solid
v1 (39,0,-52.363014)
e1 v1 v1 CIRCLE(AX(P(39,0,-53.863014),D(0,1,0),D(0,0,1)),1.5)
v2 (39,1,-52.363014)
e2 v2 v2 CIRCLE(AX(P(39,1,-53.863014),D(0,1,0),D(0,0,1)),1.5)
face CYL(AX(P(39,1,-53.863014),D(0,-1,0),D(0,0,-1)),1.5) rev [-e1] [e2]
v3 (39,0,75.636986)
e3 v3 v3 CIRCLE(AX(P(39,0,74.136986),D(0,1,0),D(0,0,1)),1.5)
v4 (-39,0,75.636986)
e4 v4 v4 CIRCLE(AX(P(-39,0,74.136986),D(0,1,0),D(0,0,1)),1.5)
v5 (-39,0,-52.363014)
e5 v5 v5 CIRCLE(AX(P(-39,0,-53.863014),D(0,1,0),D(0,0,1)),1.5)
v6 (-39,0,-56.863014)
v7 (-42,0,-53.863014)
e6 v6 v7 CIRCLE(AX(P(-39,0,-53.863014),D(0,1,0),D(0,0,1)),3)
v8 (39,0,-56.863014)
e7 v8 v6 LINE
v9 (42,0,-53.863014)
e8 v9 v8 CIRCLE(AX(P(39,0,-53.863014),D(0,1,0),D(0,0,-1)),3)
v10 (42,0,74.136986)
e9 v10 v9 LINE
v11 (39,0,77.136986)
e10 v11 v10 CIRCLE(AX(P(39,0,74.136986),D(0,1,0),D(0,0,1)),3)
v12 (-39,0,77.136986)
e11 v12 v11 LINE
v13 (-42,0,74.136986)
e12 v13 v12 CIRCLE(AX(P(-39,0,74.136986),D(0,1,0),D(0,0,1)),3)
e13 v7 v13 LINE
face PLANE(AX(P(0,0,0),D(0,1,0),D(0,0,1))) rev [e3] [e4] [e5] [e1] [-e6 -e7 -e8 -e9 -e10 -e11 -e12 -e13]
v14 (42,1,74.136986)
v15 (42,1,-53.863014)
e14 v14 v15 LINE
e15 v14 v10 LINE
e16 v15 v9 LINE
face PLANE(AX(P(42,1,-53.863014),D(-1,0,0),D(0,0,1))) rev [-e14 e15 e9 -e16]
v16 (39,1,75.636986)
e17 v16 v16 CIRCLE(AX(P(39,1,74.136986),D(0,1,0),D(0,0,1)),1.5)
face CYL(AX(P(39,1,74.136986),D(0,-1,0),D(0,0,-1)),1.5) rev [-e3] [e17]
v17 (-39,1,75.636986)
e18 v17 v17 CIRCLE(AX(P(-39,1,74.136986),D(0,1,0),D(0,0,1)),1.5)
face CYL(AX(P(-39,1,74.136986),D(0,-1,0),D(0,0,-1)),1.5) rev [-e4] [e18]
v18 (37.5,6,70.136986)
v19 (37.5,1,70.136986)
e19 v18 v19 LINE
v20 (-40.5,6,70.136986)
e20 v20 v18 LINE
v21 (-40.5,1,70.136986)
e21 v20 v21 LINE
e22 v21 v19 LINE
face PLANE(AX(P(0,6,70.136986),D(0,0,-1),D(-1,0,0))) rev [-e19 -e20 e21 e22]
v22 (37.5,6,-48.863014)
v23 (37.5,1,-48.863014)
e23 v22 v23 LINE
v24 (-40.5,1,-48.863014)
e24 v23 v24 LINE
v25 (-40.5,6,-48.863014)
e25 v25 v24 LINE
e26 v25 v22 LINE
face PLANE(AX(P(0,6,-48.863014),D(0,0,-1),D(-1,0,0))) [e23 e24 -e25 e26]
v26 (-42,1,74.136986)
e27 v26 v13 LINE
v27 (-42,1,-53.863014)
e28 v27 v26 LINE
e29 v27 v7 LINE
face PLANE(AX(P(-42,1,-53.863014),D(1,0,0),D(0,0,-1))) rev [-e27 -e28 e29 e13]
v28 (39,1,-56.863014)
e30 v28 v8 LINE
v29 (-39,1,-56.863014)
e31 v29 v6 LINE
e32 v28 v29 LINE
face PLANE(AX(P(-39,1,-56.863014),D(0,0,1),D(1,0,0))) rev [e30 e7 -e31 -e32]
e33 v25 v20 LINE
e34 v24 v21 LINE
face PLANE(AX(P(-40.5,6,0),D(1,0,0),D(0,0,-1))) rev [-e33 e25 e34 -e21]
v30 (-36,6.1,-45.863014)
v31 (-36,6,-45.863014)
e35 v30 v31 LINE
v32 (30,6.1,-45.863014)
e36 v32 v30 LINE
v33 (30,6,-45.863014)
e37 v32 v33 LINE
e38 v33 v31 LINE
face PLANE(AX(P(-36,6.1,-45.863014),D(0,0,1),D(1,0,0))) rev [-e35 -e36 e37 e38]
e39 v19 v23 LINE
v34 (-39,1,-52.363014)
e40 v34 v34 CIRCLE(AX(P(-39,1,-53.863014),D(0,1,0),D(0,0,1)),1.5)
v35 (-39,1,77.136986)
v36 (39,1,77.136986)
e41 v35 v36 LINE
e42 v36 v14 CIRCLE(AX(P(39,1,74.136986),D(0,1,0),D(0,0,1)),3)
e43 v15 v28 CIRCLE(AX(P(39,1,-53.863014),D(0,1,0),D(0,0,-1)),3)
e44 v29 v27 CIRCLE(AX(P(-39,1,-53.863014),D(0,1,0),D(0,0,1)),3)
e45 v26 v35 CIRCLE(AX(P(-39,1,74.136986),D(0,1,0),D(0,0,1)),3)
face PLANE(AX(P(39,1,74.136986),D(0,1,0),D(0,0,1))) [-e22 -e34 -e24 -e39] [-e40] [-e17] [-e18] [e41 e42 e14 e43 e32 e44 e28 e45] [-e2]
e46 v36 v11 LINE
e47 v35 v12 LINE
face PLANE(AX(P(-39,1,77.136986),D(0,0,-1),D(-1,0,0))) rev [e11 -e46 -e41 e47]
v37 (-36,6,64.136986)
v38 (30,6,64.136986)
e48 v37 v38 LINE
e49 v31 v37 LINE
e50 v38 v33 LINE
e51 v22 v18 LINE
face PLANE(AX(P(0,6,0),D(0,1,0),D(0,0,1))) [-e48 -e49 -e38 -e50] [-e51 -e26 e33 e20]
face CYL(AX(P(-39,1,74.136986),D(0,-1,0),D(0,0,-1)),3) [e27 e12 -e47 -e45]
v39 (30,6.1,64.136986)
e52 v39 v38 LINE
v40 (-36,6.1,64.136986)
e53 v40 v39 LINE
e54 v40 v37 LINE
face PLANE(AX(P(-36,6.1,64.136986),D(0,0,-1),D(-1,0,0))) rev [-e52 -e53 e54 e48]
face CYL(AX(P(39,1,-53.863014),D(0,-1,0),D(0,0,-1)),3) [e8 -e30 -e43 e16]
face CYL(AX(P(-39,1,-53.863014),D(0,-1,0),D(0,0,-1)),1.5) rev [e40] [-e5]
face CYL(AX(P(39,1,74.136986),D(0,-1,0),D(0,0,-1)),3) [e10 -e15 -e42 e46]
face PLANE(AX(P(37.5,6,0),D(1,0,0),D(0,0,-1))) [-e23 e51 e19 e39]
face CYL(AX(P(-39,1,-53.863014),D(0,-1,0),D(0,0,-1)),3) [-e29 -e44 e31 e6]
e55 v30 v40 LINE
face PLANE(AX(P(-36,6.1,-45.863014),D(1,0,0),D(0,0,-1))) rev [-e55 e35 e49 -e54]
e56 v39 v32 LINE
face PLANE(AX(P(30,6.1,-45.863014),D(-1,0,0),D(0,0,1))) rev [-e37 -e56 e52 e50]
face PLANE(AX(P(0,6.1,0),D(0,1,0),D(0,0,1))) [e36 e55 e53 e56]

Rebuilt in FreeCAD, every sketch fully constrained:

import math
import FreeCAD as App
import Part
import Sketcher


def add_polygon(sketch, points):
    """Adds a closed chain of lines whose ends are joined by coincident constraints."""
    first, n = sketch.GeometryCount, len(points)
    for a, b in zip(points, points[1:] + points[:1]):
        sketch.addGeometry(Part.LineSegment(App.Vector(*a, 0), App.Vector(*b, 0)), False)
    for i in range(n):
        sketch.addConstraint(Sketcher.Constraint("Coincident", first + i, 2, first + (i + 1) % n, 1))

doc = App.newDocument("Part")
body = doc.addObject("PartDesign::Body", "Body")

# Sketch on XZ plane
sketch1 = doc.addObject("Sketcher::SketchObject", "Sketch")
body.addObject(sketch1)
sketch1.AttachmentSupport = (doc.XZ_Plane, [""])
sketch1.MapMode = "FlatFace"
add_polygon(sketch1, [(-40.5, -48.863014), (-40.5, 70.136986), (37.5, 70.136986), (37.5, -48.863014)])  # lines 0-3
sketch1.addConstraint([
    Sketcher.Constraint("Vertical", 0),
    Sketcher.Constraint("Horizontal", 1),
    Sketcher.Constraint("Vertical", 2),
    Sketcher.Constraint("Horizontal", 3),
    Sketcher.Constraint("DistanceX", 1, 1, 1, 2, 78.0),
    Sketcher.Constraint("DistanceY", 0, 1, 0, 2, 119.0),
    Sketcher.Constraint("DistanceX", 0, 2, -1, 1, 40.5),
    Sketcher.Constraint("DistanceY", -1, 1, 0, 2, 70.136986),
])
pad1 = doc.addObject("PartDesign::Pad", "Pad")
body.addObject(pad1)
pad1.Profile = sketch1
pad1.Length = 6
pad1.Reversed = True

# Sketch on XZ plane
sketch2 = doc.addObject("Sketcher::SketchObject", "Sketch001")
body.addObject(sketch2)
sketch2.AttachmentSupport = (doc.XZ_Plane, [""])
sketch2.MapMode = "FlatFace"
sketch2.addGeometry(Part.LineSegment(App.Vector(39, -56.863014, 0), App.Vector(-39, -56.863014, 0)), False)  # 0
sketch2.addGeometry(Part.ArcOfCircle(Part.Circle(App.Vector(-39, -53.863014, 0), App.Vector(0, 0, 1), 3), math.radians(180), math.radians(270)), False)  # 1
sketch2.addGeometry(Part.LineSegment(App.Vector(-42, -53.863014, 0), App.Vector(-42, 74.136986, 0)), False)  # 2
sketch2.addGeometry(Part.ArcOfCircle(Part.Circle(App.Vector(-39, 74.136986, 0), App.Vector(0, 0, 1), 3), math.radians(90), math.radians(180)), False)  # 3
sketch2.addGeometry(Part.LineSegment(App.Vector(-39, 77.136986, 0), App.Vector(39, 77.136986, 0)), False)  # 4
sketch2.addGeometry(Part.ArcOfCircle(Part.Circle(App.Vector(39, 74.136986, 0), App.Vector(0, 0, 1), 3), math.radians(0), math.radians(90)), False)  # 5
sketch2.addGeometry(Part.LineSegment(App.Vector(42, 74.136986, 0), App.Vector(42, -53.863014, 0)), False)  # 6
sketch2.addGeometry(Part.ArcOfCircle(Part.Circle(App.Vector(39, -53.863014, 0), App.Vector(0, 0, 1), 3), math.radians(-90), math.radians(0)), False)  # 7
sketch2.addGeometry(Part.Circle(App.Vector(39, 74.136986, 0), App.Vector(0, 0, 1), 1.5), False)  # 8
sketch2.addGeometry(Part.Circle(App.Vector(-39, 74.136986, 0), App.Vector(0, 0, 1), 1.5), False)  # 9
add_polygon(sketch2, [(-40.5, 70.136986), (-40.5, -48.863014), (37.5, -48.863014), (37.5, 70.136986)])  # lines 10-13
sketch2.addGeometry(Part.Circle(App.Vector(39, -53.863014, 0), App.Vector(0, 0, 1), 1.5), False)  # 14
sketch2.addGeometry(Part.Circle(App.Vector(-39, -53.863014, 0), App.Vector(0, 0, 1), 1.5), False)  # 15
sketch2.addConstraint([
    Sketcher.Constraint("Tangent", 0, 2, 1, 2),
    Sketcher.Constraint("Tangent", 1, 1, 2, 1),
    Sketcher.Constraint("Tangent", 2, 2, 3, 2),
    Sketcher.Constraint("Tangent", 3, 1, 4, 1),
    Sketcher.Constraint("Tangent", 4, 2, 5, 2),
    Sketcher.Constraint("Tangent", 5, 1, 6, 1),
    Sketcher.Constraint("Tangent", 6, 2, 7, 2),
    Sketcher.Constraint("Tangent", 7, 1, 0, 1),
    Sketcher.Constraint("Horizontal", 0),
    Sketcher.Constraint("Vertical", 2),
    Sketcher.Constraint("Horizontal", 4),
    Sketcher.Constraint("Vertical", 6),
    Sketcher.Constraint("Vertical", 10),
    Sketcher.Constraint("Horizontal", 11),
    Sketcher.Constraint("Vertical", 12),
    Sketcher.Constraint("Horizontal", 13),
    Sketcher.Constraint("Coincident", 8, 3, 5, 3),
    Sketcher.Constraint("Coincident", 9, 3, 3, 3),
    Sketcher.Constraint("Coincident", 14, 3, 7, 3),
    Sketcher.Constraint("Coincident", 15, 3, 1, 3),
    Sketcher.Constraint("Equal", 1, 3),
    Sketcher.Constraint("Equal", 3, 5),
    Sketcher.Constraint("Equal", 5, 7),
    Sketcher.Constraint("Equal", 8, 9),
    Sketcher.Constraint("Equal", 9, 14),
    Sketcher.Constraint("Equal", 14, 15),
    Sketcher.Constraint("Equal", 4, 11),
    Sketcher.Constraint("Diameter", 8, 3.0),
    Sketcher.Constraint("Radius", 1, 3.0),
    Sketcher.Constraint("DistanceX", 0, 2, 0, 1, 78.0),
    Sketcher.Constraint("DistanceY", 2, 1, 2, 2, 128.0),
    Sketcher.Constraint("DistanceY", 10, 2, 10, 1, 119.0),
    Sketcher.Constraint("DistanceX", 1, 3, -1, 1, 39.0),
    Sketcher.Constraint("DistanceY", 1, 3, 10, 2, 5.0),
    Sketcher.Constraint("DistanceX", 10, 2, -1, 1, 40.5),
    Sketcher.Constraint("DistanceY", 1, 3, -1, 1, 53.863014),
])
pad2 = doc.addObject("PartDesign::Pad", "Pad001")
body.addObject(pad2)
pad2.Profile = sketch2
pad2.Length = 1
pad2.Reversed = True

# Sketch on XZ plane
sketch3 = doc.addObject("Sketcher::SketchObject", "Sketch002")
body.addObject(sketch3)
sketch3.AttachmentSupport = (doc.XZ_Plane, [""])
sketch3.MapMode = "FlatFace"
sketch3.AttachmentOffset = App.Placement(App.Vector(0, 0, -6), App.Rotation())
add_polygon(sketch3, [(-36, -45.863014), (-36, 64.136986), (30, 64.136986), (30, -45.863014)])  # lines 0-3
sketch3.addConstraint([
    Sketcher.Constraint("Vertical", 0),
    Sketcher.Constraint("Horizontal", 1),
    Sketcher.Constraint("Vertical", 2),
    Sketcher.Constraint("Horizontal", 3),
    Sketcher.Constraint("DistanceX", 1, 1, 1, 2, 66.0),
    Sketcher.Constraint("DistanceY", 0, 1, 0, 2, 110.0),
    Sketcher.Constraint("DistanceX", 0, 2, -1, 1, 36.0),
    Sketcher.Constraint("DistanceY", -1, 1, 0, 2, 64.136986),
])
pad3 = doc.addObject("PartDesign::Pad", "Pad002")
body.addObject(pad3)
pad3.Profile = sketch3
pad3.Length = 0.1
pad3.Reversed = True

doc.recompute()
